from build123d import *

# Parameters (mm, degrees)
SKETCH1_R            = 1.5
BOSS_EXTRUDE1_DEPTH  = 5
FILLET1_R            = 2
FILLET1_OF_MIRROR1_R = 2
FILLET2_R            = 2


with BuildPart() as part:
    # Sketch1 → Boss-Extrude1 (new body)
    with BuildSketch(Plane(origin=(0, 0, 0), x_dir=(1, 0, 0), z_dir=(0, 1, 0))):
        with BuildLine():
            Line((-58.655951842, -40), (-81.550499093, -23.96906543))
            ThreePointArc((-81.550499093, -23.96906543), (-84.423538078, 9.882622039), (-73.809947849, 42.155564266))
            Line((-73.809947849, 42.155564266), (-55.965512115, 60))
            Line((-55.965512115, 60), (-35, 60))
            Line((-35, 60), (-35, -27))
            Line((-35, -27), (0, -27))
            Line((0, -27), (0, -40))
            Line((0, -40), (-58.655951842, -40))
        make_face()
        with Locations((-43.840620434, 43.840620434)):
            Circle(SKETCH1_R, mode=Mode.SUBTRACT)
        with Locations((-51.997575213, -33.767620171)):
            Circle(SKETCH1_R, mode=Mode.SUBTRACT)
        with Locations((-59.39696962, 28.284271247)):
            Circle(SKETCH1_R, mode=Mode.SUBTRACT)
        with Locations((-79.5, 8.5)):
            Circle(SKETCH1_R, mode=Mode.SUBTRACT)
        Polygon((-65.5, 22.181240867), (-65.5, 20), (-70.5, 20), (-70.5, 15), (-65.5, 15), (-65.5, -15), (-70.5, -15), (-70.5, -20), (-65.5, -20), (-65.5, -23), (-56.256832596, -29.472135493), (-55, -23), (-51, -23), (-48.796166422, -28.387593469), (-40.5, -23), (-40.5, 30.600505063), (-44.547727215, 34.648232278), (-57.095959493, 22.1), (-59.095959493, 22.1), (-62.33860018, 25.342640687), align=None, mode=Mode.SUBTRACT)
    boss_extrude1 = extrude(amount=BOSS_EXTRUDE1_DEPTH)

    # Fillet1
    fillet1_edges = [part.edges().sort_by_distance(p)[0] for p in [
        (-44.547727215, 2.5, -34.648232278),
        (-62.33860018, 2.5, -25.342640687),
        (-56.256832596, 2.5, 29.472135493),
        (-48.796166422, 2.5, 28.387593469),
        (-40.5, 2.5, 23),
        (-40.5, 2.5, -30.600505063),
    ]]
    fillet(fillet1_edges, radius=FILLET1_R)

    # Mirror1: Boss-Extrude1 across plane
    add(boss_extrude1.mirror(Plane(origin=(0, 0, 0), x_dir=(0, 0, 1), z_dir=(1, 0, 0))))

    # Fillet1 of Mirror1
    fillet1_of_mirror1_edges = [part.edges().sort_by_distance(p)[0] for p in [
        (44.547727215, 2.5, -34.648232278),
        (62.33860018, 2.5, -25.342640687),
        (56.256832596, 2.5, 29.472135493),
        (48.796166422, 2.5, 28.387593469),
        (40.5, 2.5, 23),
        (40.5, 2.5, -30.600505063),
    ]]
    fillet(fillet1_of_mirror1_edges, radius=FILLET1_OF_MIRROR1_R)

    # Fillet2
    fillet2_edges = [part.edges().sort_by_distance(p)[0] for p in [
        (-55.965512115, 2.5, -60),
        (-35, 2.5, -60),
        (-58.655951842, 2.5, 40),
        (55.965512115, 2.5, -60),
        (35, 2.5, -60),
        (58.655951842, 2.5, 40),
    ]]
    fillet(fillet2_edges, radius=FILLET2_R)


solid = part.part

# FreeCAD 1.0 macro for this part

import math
import FreeCAD as App
import Part
import Sketcher
from FreeCAD import Vector
Q = App.Units.Quantity


def edges_at(feature, points):
    """Names of the edges that pass closest to the given points."""
    edges = feature.Shape.Edges
    near = lambda p: min(range(len(edges)), key=lambda i: edges[i].distToShape(Part.Vertex(*p))[0])
    return sorted({f"Edge{near(p) + 1}" for p in points})


def add_polygon(sketch, points):
    """Adds a closed chain of lines whose ends are joined by coincident constraints."""
    first, n = sketch.GeometryCount, len(points)
    for a, b in zip(points, points[1:] + points[:1]):
        sketch.addGeometry(Part.LineSegment(App.Vector(*a, 0), App.Vector(*b, 0)), False)
    for i in range(n):
        sketch.addConstraint(Sketcher.Constraint("Coincident", first + i, 2, first + (i + 1) % n, 1))

doc = App.newDocument("Part")
body = doc.addObject("PartDesign::Body", "Body")

# Sketch on XZ plane
sketch1 = body.newObject("Sketcher::SketchObject", "Sketch")
sketch1.AttachmentSupport = (doc.getObject("XZ_Plane"), [""])
sketch1.MapMode = "FlatFace"
sketch1.addGeometry(Part.LineSegment(Vector(-81.6, 24, 0), Vector(-58.7, 40, 0)), False)  # 0
sketch1.addGeometry(Part.LineSegment(Vector(-58.7, 40, 0), Vector(0, 40, 0)), False)  # 1
sketch1.addGeometry(Part.LineSegment(Vector(0, 40, 0), Vector(0, 27, 0)), False)  # 2
sketch1.addGeometry(Part.LineSegment(Vector(0, 27, 0), Vector(-35, 27, 0)), False)  # 3
sketch1.addGeometry(Part.LineSegment(Vector(-35, 27, 0), Vector(-35, -60, 0)), False)  # 4
sketch1.addGeometry(Part.LineSegment(Vector(-35, -60, 0), Vector(-56, -60, 0)), False)  # 5
sketch1.addGeometry(Part.LineSegment(Vector(-56, -60, 0), Vector(-73.8, -42.2, 0)), False)  # 6
sketch1.addGeometry(Part.ArcOfCircle(Part.Circle(Vector(0, 0, 0), Vector(0, 0, 1), 85), math.radians(164), math.radians(210)), False)  # 7
sketch1.addGeometry(Part.Circle(Vector(-52, 33.8, 0), Vector(0, 0, 1), 1.5), False)  # 8
add_polygon(sketch1, [(-65.5, -22.2), (-62.3, -25.3), (-59.1, -22.1), (-57.1, -22.1), (-44.5, -34.6), (-40.5, -30.6), (-40.5, 23), (-48.8, 28.4), (-51, 23), (-55, 23), (-56.3, 29.5), (-65.5, 23), (-65.5, 20), (-70.5, 20), (-70.5, 15), (-65.5, 15), (-65.5, -15), (-70.5, -15), (-70.5, -20), (-65.5, -20)])  # lines 9-28
sketch1.addGeometry(Part.Circle(Vector(-43.8, -43.8, 0), Vector(0, 0, 1), 1.5), False)  # 29
sketch1.addGeometry(Part.Circle(Vector(-59.4, -28.3, 0), Vector(0, 0, 1), 1.5), False)  # 30
sketch1.addGeometry(Part.Circle(Vector(-79.5, -8.5, 0), Vector(0, 0, 1), 1.5), False)  # 31
sketch1.addConstraint(Sketcher.Constraint("Coincident", 0, 2, 1, 1))
sketch1.addConstraint(Sketcher.Constraint("Coincident", 1, 2, 2, 1))
sketch1.addConstraint(Sketcher.Constraint("Coincident", 2, 2, 3, 1))
sketch1.addConstraint(Sketcher.Constraint("Coincident", 3, 2, 4, 1))
sketch1.addConstraint(Sketcher.Constraint("Coincident", 4, 2, 5, 1))
sketch1.addConstraint(Sketcher.Constraint("Coincident", 5, 2, 6, 1))
sketch1.addConstraint(Sketcher.Constraint("Coincident", 6, 2, 7, 2))
sketch1.addConstraint(Sketcher.Constraint("Coincident", 7, 1, 0, 1))
sketch1.addConstraint(Sketcher.Constraint("Horizontal", 1))
sketch1.addConstraint(Sketcher.Constraint("Vertical", 2))
sketch1.addConstraint(Sketcher.Constraint("Horizontal", 3))
sketch1.addConstraint(Sketcher.Constraint("Vertical", 4))
sketch1.addConstraint(Sketcher.Constraint("Horizontal", 5))
sketch1.addConstraint(Sketcher.Constraint("Horizontal", 11))
sketch1.addConstraint(Sketcher.Constraint("Vertical", 14))
sketch1.addConstraint(Sketcher.Constraint("Horizontal", 17))
sketch1.addConstraint(Sketcher.Constraint("Vertical", 20))
sketch1.addConstraint(Sketcher.Constraint("Horizontal", 21))
sketch1.addConstraint(Sketcher.Constraint("Vertical", 22))
sketch1.addConstraint(Sketcher.Constraint("Horizontal", 23))
sketch1.addConstraint(Sketcher.Constraint("Vertical", 24))
sketch1.addConstraint(Sketcher.Constraint("Horizontal", 25))
sketch1.addConstraint(Sketcher.Constraint("Vertical", 26))
sketch1.addConstraint(Sketcher.Constraint("Horizontal", 27))
sketch1.addConstraint(Sketcher.Constraint("Vertical", 28))
sketch1.addConstraint(Sketcher.Constraint("Coincident", 7, 3, -1, 1))
sketch1.addConstraint(Sketcher.Constraint("Equal", 8, 29))
sketch1.addConstraint(Sketcher.Constraint("Equal", 29, 30))
sketch1.addConstraint(Sketcher.Constraint("Equal", 30, 31))
sketch1.addConstraint(Sketcher.Constraint("Symmetric", 22, 2, 25, 2, -1))
sketch1.addConstraint(Sketcher.Constraint("Symmetric", 20, 2, 27, 2, -1))
sketch1.addConstraint(Sketcher.Constraint("PointOnObject", 1, 2, -2))
sketch1.addConstraint(Sketcher.Constraint("Parallel", 6, 9))
sketch1.addConstraint(Sketcher.Constraint("Perpendicular", 9, 10))
sketch1.addConstraint(Sketcher.Constraint("Perpendicular", 10, 12))
sketch1.addConstraint(Sketcher.Constraint("Perpendicular", 12, 13))
sketch1.addConstraint(Sketcher.Constraint("Parallel", 0, 19))
sketch1.addConstraint(Sketcher.Constraint("Horizontal", 14, 2, 16, 2))
sketch1.addConstraint(Sketcher.Constraint("Horizontal", 17, 2, 19, 2))
sketch1.addConstraint(Sketcher.Constraint("Vertical", 20, 2, 23, 2))
sketch1.addConstraint(Sketcher.Constraint("Equal", 27, 22))
sketch1.addConstraint(Sketcher.Constraint("Diameter", 8, 3.0))
sketch1.addConstraint(Sketcher.Constraint("Radius", 7, 85.0))
sketch1.addConstraint(Sketcher.Constraint("DistanceX", 3, 2, 3, 1, 35.0))
sketch1.addConstraint(Sketcher.Constraint("DistanceX", 11, 1, 11, 2, 2.0))
sketch1.addConstraint(Sketcher.Constraint("DistanceX", 17, 2, 17, 1, 4.0))
sketch1.addConstraint(Sketcher.Constraint("DistanceX", 21, 2, 21, 1, 5.0))
sketch1.addConstraint(Sketcher.Constraint("DistanceY", 2, 2, 2, 1, 13.0))
sketch1.addConstraint(Sketcher.Constraint("DistanceY", 4, 2, 4, 1, 87.0))
sketch1.addConstraint(Sketcher.Constraint("DistanceY", 20, 2, 20, 1, 3.0))
sketch1.addConstraint(Sketcher.Constraint("DistanceY", 24, 2, 24, 1, 30.0))
sketch1.addConstraint(Sketcher.Constraint("Angle", 0, Q("35 deg")))
sketch1.addConstraint(Sketcher.Constraint("Angle", 6, Q("135 deg")))
sketch1.addConstraint(Sketcher.Constraint("Angle", 15, Q("147 deg")))
sketch1.addConstraint(Sketcher.Constraint("DistanceY", -1, 1, 0, 2, 40.0))
sketch1.addConstraint(Sketcher.Constraint("DistanceX", 16, 2, -1, 1, 51.0))
sketch1.addConstraint(Sketcher.Constraint("DistanceX", 31, 3, 24, 2, 14.0))
sketch1.addConstraint(Sketcher.Constraint("DistanceX", 31, 3, -1, 1, 79.5))
sketch1.addConstraint(Sketcher.Constraint("DistanceY", 31, 3, -1, 1, 8.5))
sketch1.addConstraint(Sketcher.Constraint("DistanceY", 10, 2, -1, 1, 22.1))
sketch1.addConstraint(Sketcher.Constraint("DistanceX", 13, 2, -1, 1, 40.5))
sketch1.addConstraint(Sketcher.Constraint("DistanceX", 1, 1, 1, 2, 58.655952))
sketch1.addConstraint(Sketcher.Constraint("DistanceY", 28, 2, 28, 1, 2.181241))
sketch1.addConstraint(Sketcher.Constraint("DistanceX", 9, 2, -1, 1, 62.3386))
sketch1.addConstraint(Sketcher.Constraint("Distance", 12, 17.74588))
sketch1.addConstraint(Sketcher.Constraint("Distance", 18, 6.593039))
sketch1.addConstraint(Sketcher.Constraint("DistanceX", 5, 2, 5, 1, 20.965512))
sketch1.addConstraint(Sketcher.Constraint("DistanceY", -1, 1, 8, 3, 33.76762))
sketch1.addConstraint(Sketcher.Constraint("DistanceX", 29, 3, -1, 1, 43.84062))
sketch1.addConstraint(Sketcher.Constraint("DistanceY", 29, 3, -1, 1, 43.84062))
sketch1.addConstraint(Sketcher.Constraint("DistanceX", 30, 3, -1, 1, 59.39697))
sketch1.addConstraint(Sketcher.Constraint("DistanceY", 30, 3, -1, 1, 28.284271))
sketch1.addConstraint(Sketcher.Constraint("DistanceX", 8, 3, 15, 2, 3.201409))
sketch1.addConstraint(Sketcher.Constraint("DistanceY", 7, 1, 15, 2, 4.418528))
pad1 = body.newObject("PartDesign::Pad", "Pad")
pad1.Profile = sketch1
pad1.Length = 5
pad1.Reversed = True
doc.recompute()

fillet = body.newObject("PartDesign::Fillet", "Fillet")
fillet.Base = (pad1, edges_at(pad1, [
    (-44.548, 2.5, -34.648),
    (-62.339, 2.5, -25.343),
    (-56.257, 2.5, 29.472),
    (-48.796, 2.5, 28.388),
    (-40.5, 2.5, 23),
    (-40.5, 2.5, -30.601),
]))
fillet.Radius = 2
doc.recompute()

mirrored = body.newObject("PartDesign::Mirrored", "Mirrored")
mirrored.Originals = [pad1]
mirrored.MirrorPlane = (doc.getObject("YZ_Plane"), [""])
body.Tip = mirrored
doc.recompute()

fillet2 = body.newObject("PartDesign::Fillet", "Fillet001")
fillet2.Base = (mirrored, edges_at(mirrored, [
    (44.548, 2.5, -34.648),
    (62.339, 2.5, -25.343),
    (56.257, 2.5, 29.472),
    (48.796, 2.5, 28.388),
    (40.5, 2.5, 23),
    (40.5, 2.5, -30.601),
]))
fillet2.Radius = 2
doc.recompute()

fillet3 = body.newObject("PartDesign::Fillet", "Fillet002")
fillet3.Base = (fillet2, edges_at(fillet2, [
    (-55.966, 2.5, -60),
    (-35, 2.5, -60),
    (-58.656, 2.5, 40),
    (55.966, 2.5, -60),
    (35, 2.5, -60),
    (58.656, 2.5, 40),
]))
fillet3.Radius = 2

doc.recompute()
